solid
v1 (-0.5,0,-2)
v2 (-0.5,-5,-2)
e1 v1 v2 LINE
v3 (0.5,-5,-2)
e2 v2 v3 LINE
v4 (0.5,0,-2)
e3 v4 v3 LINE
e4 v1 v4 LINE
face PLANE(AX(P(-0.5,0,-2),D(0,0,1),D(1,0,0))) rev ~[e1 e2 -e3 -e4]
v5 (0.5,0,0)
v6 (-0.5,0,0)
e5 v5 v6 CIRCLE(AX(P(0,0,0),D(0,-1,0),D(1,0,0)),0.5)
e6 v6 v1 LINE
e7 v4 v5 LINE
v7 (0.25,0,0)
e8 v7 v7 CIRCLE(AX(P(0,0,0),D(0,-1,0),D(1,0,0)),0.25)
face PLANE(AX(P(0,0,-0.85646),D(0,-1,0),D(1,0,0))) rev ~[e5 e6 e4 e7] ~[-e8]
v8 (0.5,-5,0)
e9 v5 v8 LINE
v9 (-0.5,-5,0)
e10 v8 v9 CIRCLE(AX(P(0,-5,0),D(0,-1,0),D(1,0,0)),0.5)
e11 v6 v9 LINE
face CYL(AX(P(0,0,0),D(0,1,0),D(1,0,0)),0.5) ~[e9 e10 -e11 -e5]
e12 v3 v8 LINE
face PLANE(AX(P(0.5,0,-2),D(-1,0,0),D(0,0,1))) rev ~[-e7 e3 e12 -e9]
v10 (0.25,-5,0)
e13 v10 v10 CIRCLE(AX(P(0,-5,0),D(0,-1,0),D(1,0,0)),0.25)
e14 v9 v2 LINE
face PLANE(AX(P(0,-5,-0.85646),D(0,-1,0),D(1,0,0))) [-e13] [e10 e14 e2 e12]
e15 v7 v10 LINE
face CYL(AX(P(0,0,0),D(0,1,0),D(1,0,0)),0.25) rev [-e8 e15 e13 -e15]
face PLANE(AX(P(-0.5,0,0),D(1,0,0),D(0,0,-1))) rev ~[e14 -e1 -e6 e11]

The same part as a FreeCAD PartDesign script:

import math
import FreeCAD as App
import Part
import Sketcher
from FreeCAD import Vector
Q = App.Units.Quantity

doc = App.newDocument("Part")
body = doc.addObject("PartDesign::Body", "Body")

# Sketch on XZ plane
sketch1 = doc.addObject("Sketcher::SketchObject", "Sketch")
body.addObject(sketch1)
sketch1.AttachmentSupport = (doc.XZ_Plane, [""])
sketch1.MapMode = "FlatFace"
sketch1.addGeometry([
    Part.ArcOfCircle(Part.Circle(Vector(0, 0, 0), Vector(0, 0, 1), 0.5), math.radians(0), math.radians(180)),  # 0
    Part.LineSegment(Vector(-0.5, 0, 0), Vector(-0.5, -2, 0)),  # 1
    Part.LineSegment(Vector(-0.5, -2, 0), Vector(0.5, -2, 0)),  # 2
    Part.LineSegment(Vector(0.5, -2, 0), Vector(0.5, 0, 0)),  # 3
    Part.Circle(Vector(0, 0, 0), Vector(0, 0, 1), 0.25),  # 4
], False)
sketch1.addConstraint([
    Sketcher.Constraint("Tangent", 0, 2, 1, 1),
    Sketcher.Constraint("Coincident", 1, 2, 2, 1),
    Sketcher.Constraint("Coincident", 2, 2, 3, 1),
    Sketcher.Constraint("Tangent", 3, 2, 0, 1),
    Sketcher.Constraint("Vertical", 1),
    Sketcher.Constraint("Horizontal", 2),
    Sketcher.Constraint("Vertical", 3),
    Sketcher.Constraint("Coincident", 0, 3, -1, 1),
    Sketcher.Constraint("Coincident", 4, 3, -1, 1),
    Sketcher.Constraint("Diameter", 4, Q("0.5 mm")),
    Sketcher.Constraint("Radius", 0, Q("0.5 mm")),
    Sketcher.Constraint("DistanceY", 1, 2, 1, 1, Q("2 mm")),
])
pad1 = doc.addObject("PartDesign::Pad", "Pad")
body.addObject(pad1)
pad1.Profile = sketch1
pad1.Length = 5

doc.recompute()
